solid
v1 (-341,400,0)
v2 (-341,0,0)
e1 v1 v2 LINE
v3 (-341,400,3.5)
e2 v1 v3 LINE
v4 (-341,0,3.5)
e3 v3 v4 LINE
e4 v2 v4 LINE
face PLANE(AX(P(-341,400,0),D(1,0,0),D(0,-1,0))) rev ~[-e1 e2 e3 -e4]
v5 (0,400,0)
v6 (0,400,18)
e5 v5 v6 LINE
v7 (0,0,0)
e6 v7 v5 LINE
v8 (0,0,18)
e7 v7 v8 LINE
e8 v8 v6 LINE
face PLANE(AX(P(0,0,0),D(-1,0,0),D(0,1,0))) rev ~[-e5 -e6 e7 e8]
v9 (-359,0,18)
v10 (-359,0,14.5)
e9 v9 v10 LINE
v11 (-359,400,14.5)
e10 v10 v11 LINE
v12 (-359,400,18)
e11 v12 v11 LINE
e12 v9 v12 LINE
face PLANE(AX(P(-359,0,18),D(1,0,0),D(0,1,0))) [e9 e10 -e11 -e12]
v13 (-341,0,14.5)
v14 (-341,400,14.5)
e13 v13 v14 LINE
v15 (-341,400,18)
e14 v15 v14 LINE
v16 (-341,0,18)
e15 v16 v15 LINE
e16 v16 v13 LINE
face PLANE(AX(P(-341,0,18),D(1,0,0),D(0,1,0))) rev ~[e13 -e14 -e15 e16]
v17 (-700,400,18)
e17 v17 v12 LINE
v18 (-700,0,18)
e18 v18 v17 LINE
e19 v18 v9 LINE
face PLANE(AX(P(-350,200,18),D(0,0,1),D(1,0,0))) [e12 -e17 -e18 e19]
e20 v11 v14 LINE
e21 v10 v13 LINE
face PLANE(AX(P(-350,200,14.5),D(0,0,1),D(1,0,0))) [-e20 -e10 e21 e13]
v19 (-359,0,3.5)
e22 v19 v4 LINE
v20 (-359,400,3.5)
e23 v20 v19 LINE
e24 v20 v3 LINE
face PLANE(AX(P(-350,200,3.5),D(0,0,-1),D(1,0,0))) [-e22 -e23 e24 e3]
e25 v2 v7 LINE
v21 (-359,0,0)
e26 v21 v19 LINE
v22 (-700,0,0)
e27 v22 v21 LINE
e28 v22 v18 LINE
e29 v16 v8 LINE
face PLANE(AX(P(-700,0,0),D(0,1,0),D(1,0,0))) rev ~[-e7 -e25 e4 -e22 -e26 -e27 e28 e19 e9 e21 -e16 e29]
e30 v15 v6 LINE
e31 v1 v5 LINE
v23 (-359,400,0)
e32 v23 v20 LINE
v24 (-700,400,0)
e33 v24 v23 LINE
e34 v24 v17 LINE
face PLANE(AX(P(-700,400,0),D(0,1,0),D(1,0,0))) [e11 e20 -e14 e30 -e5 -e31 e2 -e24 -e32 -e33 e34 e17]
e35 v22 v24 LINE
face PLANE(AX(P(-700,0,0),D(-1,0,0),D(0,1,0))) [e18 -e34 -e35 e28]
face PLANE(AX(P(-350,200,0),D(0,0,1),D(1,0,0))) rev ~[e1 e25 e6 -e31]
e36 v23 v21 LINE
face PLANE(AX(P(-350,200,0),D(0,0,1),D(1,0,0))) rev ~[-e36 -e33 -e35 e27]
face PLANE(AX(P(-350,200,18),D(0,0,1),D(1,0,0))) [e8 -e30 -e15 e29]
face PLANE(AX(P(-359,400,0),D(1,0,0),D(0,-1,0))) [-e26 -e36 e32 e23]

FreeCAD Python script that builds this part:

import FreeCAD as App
import Part
import Sketcher
from FreeCAD import Vector
Q = App.Units.Quantity


def add_polygon(sketch, points):
    """Adds a closed chain of lines whose ends are joined by coincident constraints."""
    first, n = sketch.GeometryCount, len(points)
    for a, b in zip(points, points[1:] + points[:1]):
        sketch.addGeometry(Part.LineSegment(App.Vector(*a, 0), App.Vector(*b, 0)), False)
    for i in range(n):
        sketch.addConstraint(Sketcher.Constraint("Coincident", first + i, 2, first + (i + 1) % n, 1))

doc = App.newDocument("Part")
body = doc.addObject("PartDesign::Body", "Body")

sketch1 = body.newObject("Sketcher::SketchObject", "Sketch")
sketch1.AttachmentSupport = (doc.getObject("XY_Plane"), [""])
sketch1.MapMode = "FlatFace"
add_polygon(sketch1, [(-700, 400), (-700, 0), (0, 0), (0, 400)])
sketch1.addConstraint([
    Sketcher.Constraint("Vertical", 0),
    Sketcher.Constraint("Horizontal", 1),
    Sketcher.Constraint("Vertical", 2),
    Sketcher.Constraint("Horizontal", 3),
    Sketcher.Constraint("Coincident", 1, 2, -1, 1),
    Sketcher.Constraint("DistanceX", 1, 1, 1, 2, Q("700 mm")),
    Sketcher.Constraint("DistanceY", 0, 2, 0, 1, Q("400 mm")),
])
pad1 = body.newObject("PartDesign::Pad", "Pad")
pad1.Profile = sketch1
pad1.Length = 18

sketch2 = body.newObject("Sketcher::SketchObject", "Sketch001")
sketch2.AttachmentSupport = (doc.getObject("XY_Plane"), [""])
sketch2.MapMode = "FlatFace"
add_polygon(sketch2, [(-700, 400), (-700, 0), (0, 0), (0, 400)])
sketch2.addConstraint([
    Sketcher.Constraint("Vertical", 0),
    Sketcher.Constraint("Horizontal", 1),
    Sketcher.Constraint("Vertical", 2),
    Sketcher.Constraint("Horizontal", 3),
    Sketcher.Constraint("Coincident", 1, 2, -1, 1),
    Sketcher.Constraint("DistanceX", 1, 1, 1, 2, Q("700 mm")),
    Sketcher.Constraint("DistanceY", 0, 2, 0, 1, Q("400 mm")),
])
pad2 = body.newObject("PartDesign::Pad", "Pad001")
pad2.Profile = sketch2
pad2.Length = 18

sketch3 = body.newObject("Sketcher::SketchObject", "Sketch002")
sketch3.AttachmentSupport = (doc.getObject("XY_Plane"), [""])
sketch3.MapMode = "FlatFace"
sketch3.AttachmentOffset = App.Placement(Vector(0, 0, 18), App.Rotation())
add_polygon(sketch3, [(-359, 400), (-359, 0), (-341, 0), (-341, 400)])
sketch3.addConstraint([
    Sketcher.Constraint("Vertical", 0),
    Sketcher.Constraint("Horizontal", 1),
    Sketcher.Constraint("Vertical", 2),
    Sketcher.Constraint("Horizontal", 3),
    Sketcher.Constraint("PointOnObject", 0, 2, -1),
    Sketcher.Constraint("DistanceX", 1, 1, 1, 2, Q("18 mm")),
    Sketcher.Constraint("DistanceY", 0, 2, 0, 1, Q("400 mm")),
    Sketcher.Constraint("DistanceX", 0, 2, -1, 1, Q("359 mm")),
])
pocket1 = body.newObject("PartDesign::Pocket", "Pocket")
pocket1.Profile = sketch3
pocket1.Length = 3.5

sketch4 = body.newObject("Sketcher::SketchObject", "Sketch003")
sketch4.AttachmentSupport = (doc.getObject("XY_Plane"), [""])
sketch4.MapMode = "FlatFace"
add_polygon(sketch4, [(-359, 0), (-359, 400), (-341, 400), (-341, 0)])
sketch4.addConstraint([
    Sketcher.Constraint("Vertical", 0),
    Sketcher.Constraint("Horizontal", 1),
    Sketcher.Constraint("Vertical", 2),
    Sketcher.Constraint("Horizontal", 3),
    Sketcher.Constraint("PointOnObject", 2, 2, -1),
    Sketcher.Constraint("DistanceX", 1, 1, 1, 2, Q("18 mm")),
    Sketcher.Constraint("DistanceY", 0, 1, 0, 2, Q("400 mm")),
    Sketcher.Constraint("DistanceX", 0, 2, -1, 1, Q("359 mm")),
])
pocket2 = body.newObject("PartDesign::Pocket", "Pocket001")
pocket2.Profile = sketch4
pocket2.Length = 3.5
pocket2.Reversed = True

doc.recompute()
